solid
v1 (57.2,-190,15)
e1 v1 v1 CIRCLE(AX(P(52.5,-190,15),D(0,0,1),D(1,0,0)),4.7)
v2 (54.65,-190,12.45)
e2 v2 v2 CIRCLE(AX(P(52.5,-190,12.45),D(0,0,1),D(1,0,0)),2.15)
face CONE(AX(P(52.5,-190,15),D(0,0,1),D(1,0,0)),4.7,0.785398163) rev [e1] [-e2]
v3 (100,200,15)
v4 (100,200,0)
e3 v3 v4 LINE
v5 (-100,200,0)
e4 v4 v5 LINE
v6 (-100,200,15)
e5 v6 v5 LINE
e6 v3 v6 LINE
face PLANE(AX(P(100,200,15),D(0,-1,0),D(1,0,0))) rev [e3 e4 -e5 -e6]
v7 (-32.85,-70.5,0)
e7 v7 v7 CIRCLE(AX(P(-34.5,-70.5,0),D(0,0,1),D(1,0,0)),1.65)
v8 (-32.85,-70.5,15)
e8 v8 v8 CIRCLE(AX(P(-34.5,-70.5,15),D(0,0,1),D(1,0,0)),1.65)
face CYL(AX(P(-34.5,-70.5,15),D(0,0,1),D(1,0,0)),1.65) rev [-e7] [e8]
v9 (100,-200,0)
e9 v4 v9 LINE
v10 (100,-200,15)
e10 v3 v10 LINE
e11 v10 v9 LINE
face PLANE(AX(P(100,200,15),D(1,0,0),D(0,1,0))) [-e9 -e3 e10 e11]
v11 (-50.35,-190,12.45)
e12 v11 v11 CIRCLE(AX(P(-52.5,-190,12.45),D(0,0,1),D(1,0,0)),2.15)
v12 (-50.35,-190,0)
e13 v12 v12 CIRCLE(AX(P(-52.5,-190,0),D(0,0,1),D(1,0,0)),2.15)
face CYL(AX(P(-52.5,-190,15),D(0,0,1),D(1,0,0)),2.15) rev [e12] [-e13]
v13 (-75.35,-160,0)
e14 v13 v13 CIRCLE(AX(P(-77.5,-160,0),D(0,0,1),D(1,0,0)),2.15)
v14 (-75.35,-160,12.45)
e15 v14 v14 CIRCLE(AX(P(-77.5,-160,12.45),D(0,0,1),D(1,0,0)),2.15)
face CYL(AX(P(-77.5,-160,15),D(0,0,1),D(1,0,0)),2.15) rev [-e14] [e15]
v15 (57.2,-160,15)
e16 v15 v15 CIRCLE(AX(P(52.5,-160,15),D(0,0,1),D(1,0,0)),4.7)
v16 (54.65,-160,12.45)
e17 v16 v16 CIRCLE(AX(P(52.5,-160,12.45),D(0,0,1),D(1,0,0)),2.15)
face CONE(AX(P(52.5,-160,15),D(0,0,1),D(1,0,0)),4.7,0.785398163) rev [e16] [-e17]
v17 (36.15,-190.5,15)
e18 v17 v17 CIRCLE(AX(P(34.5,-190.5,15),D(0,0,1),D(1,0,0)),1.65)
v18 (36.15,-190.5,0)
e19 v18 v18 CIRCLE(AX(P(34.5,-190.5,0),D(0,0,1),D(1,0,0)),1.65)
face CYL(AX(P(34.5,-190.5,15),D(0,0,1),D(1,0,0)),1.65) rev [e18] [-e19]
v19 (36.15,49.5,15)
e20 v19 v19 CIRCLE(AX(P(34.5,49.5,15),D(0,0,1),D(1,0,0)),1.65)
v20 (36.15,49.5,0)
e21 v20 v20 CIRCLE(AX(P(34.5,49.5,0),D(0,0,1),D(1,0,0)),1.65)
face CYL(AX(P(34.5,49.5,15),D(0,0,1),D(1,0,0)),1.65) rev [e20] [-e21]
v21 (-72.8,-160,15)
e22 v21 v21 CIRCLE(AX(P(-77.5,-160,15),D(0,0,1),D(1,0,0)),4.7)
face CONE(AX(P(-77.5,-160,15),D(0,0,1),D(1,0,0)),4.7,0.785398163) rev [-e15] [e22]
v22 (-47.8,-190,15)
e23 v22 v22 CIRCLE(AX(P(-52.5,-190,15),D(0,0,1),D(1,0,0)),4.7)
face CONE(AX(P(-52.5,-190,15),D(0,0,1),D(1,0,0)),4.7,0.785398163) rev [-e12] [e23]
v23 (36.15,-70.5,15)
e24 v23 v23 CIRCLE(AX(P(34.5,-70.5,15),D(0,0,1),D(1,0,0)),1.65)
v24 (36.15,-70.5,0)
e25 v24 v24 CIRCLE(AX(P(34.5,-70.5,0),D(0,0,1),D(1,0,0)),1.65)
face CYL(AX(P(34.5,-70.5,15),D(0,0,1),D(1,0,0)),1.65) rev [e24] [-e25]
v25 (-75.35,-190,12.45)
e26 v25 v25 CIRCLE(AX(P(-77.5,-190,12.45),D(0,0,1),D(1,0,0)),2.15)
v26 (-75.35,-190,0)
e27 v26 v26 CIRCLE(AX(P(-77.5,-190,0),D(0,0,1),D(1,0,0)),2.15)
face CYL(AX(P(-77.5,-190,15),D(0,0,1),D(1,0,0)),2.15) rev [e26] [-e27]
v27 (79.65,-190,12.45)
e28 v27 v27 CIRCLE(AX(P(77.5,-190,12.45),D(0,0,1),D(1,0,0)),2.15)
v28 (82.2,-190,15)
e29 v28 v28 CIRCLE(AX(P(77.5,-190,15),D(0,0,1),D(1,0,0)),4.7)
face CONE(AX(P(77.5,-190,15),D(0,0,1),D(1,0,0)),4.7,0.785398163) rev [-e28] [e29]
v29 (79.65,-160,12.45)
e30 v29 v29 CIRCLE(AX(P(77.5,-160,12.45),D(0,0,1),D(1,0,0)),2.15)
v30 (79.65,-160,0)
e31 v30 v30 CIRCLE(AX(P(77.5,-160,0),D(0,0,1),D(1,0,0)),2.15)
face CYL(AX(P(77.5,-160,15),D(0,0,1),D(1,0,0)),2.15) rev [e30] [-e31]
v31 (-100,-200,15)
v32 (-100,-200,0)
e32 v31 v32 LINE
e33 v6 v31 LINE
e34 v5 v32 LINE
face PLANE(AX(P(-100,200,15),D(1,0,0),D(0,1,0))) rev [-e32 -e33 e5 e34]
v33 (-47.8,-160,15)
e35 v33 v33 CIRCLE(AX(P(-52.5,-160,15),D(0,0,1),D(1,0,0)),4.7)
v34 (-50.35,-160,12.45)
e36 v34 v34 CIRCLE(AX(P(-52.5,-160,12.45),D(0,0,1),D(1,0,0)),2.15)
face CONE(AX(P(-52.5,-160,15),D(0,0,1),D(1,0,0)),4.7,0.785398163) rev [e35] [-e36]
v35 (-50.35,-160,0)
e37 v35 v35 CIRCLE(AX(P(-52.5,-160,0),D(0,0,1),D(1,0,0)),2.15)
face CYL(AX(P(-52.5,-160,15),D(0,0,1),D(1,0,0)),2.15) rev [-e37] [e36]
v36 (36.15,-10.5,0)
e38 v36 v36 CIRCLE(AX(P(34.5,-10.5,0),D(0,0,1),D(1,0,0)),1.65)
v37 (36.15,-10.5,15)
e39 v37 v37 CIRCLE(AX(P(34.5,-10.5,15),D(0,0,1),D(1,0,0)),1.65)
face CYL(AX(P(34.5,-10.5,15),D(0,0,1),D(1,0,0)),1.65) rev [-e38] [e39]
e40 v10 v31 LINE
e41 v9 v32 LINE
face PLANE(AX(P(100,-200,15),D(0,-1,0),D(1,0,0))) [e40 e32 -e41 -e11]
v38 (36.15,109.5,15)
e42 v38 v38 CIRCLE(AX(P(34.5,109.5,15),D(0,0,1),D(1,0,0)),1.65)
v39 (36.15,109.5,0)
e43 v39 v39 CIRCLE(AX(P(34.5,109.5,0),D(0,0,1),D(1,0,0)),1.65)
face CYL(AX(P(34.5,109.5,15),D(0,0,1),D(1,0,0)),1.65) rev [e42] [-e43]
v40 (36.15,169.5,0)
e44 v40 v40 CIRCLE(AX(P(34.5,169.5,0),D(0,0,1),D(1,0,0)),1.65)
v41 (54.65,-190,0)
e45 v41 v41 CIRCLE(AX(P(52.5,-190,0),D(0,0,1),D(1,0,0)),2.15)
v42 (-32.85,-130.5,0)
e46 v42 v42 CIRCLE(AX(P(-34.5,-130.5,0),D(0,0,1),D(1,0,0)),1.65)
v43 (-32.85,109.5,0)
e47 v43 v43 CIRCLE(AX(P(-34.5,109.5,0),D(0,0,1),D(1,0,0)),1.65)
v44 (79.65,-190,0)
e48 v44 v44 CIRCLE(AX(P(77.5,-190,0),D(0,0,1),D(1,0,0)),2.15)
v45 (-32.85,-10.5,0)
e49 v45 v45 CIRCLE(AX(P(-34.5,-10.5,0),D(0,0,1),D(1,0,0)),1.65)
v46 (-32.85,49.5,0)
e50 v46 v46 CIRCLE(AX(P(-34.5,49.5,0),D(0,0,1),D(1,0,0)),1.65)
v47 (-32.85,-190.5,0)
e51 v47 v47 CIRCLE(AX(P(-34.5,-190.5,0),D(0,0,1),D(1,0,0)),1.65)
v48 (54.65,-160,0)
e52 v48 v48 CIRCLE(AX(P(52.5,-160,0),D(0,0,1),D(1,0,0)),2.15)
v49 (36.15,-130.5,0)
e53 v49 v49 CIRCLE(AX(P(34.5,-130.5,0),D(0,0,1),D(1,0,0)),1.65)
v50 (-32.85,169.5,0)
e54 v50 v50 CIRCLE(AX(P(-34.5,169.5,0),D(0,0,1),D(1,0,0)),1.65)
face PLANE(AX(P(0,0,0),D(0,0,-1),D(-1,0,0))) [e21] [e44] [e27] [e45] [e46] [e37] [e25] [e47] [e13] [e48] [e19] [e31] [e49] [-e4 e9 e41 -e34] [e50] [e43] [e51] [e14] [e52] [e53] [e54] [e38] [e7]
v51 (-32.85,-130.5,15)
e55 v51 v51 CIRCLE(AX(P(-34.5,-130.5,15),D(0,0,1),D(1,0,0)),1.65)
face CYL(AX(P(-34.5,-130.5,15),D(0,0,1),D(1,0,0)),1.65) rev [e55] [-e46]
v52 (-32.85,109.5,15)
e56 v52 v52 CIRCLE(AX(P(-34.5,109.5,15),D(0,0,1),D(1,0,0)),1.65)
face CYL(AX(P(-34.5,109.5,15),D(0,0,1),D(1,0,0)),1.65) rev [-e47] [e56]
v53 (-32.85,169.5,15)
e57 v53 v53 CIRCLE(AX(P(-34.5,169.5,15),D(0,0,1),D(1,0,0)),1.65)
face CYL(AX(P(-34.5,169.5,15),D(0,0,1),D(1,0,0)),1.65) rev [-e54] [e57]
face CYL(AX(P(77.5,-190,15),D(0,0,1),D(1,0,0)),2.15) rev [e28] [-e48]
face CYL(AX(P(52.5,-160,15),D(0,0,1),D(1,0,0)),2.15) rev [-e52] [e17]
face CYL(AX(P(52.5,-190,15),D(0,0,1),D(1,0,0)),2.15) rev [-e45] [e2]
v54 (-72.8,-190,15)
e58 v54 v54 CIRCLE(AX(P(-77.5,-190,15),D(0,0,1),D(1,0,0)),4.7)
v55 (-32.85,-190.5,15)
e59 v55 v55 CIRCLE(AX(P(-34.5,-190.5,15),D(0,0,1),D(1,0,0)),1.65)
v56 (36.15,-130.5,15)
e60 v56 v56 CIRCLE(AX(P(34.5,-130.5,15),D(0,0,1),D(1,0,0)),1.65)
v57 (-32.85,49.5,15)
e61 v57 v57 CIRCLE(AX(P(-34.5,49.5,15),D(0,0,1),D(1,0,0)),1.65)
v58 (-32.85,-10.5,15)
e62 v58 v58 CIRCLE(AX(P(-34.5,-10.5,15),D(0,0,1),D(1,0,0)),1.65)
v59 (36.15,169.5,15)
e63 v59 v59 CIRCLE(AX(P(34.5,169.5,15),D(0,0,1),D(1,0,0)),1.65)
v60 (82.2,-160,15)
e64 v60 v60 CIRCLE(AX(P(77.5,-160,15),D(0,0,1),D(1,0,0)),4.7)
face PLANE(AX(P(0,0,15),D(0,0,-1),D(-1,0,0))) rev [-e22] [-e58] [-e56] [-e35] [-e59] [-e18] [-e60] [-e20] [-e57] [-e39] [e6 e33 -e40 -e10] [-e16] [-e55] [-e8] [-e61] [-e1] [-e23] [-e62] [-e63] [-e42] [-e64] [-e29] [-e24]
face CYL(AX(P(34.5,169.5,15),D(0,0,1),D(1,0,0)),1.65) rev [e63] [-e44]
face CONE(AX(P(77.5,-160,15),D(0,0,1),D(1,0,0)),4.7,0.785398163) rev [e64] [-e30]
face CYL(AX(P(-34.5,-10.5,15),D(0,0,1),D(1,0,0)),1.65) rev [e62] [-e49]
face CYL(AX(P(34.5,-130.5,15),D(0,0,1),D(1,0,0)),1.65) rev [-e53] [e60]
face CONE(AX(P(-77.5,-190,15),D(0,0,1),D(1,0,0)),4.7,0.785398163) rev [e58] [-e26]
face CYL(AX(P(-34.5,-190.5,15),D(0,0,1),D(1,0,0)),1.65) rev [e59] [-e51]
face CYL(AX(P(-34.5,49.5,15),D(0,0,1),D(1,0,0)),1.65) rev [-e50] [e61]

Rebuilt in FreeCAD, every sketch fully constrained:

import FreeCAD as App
import Part
import Sketcher

V = App.Vector


def add_polygon(sketch, points):
    """Adds a closed chain of lines whose ends are joined by coincident constraints."""
    first, n = sketch.GeometryCount, len(points)
    for a, b in zip(points, points[1:] + points[:1]):
        sketch.addGeometry(Part.LineSegment(App.Vector(*a, 0), App.Vector(*b, 0)), False)
    for i in range(n):
        sketch.addConstraint(Sketcher.Constraint("Coincident", first + i, 2, first + (i + 1) % n, 1))

doc = App.newDocument("Part")
body = doc.addObject("PartDesign::Body", "Body")

# Sketch on XY plane
sketch1 = body.newObject("Sketcher::SketchObject", "Sketch")
sketch1.AttachmentSupport = (doc.getObject("XY_Plane"), [""])
sketch1.MapMode = "FlatFace"
add_polygon(sketch1, [(-100, 200), (-100, -200), (100, -200), (100, 200)])  # lines 0-3
sketch1.addConstraint([
    Sketcher.Constraint("Vertical", 0),
    Sketcher.Constraint("Horizontal", 1),
    Sketcher.Constraint("Vertical", 2),
    Sketcher.Constraint("Horizontal", 3),
    Sketcher.Constraint("Symmetric", 0, 2, 2, 2, -1, 1),
    Sketcher.Constraint("DistanceX", 1, 1, 1, 2, 200.0),
    Sketcher.Constraint("DistanceY", 0, 2, 0, 1, 400.0),
])
pad1 = body.newObject("PartDesign::Pad", "Pad")
pad1.Profile = sketch1
pad1.Length = 15

# Sketch on XY plane
sketch2 = body.newObject("Sketcher::SketchObject", "Sketch001")
sketch2.AttachmentSupport = (doc.getObject("XY_Plane"), [""])
sketch2.MapMode = "FlatFace"
sketch2.AttachmentOffset = App.Placement(V(0, 0, 15), App.Rotation())
sketch2.addGeometry([
    Part.Circle(V(-77.5, -160, 0), V(0, 0, 1), 2.15),  # 0
    Part.Circle(V(-52.5, -160, 0), V(0, 0, 1), 2.15),  # 1
    Part.Circle(V(-52.5, -190, 0), V(0, 0, 1), 2.15),  # 2
    Part.Circle(V(-77.5, -190, 0), V(0, 0, 1), 2.15),  # 3
    Part.Circle(V(52.5, -160, 0), V(0, 0, 1), 2.15),  # 4
    Part.Circle(V(77.5, -160, 0), V(0, 0, 1), 2.15),  # 5
    Part.Circle(V(77.5, -190, 0), V(0, 0, 1), 2.15),  # 6
    Part.Circle(V(52.5, -190, 0), V(0, 0, 1), 2.15),  # 7
], False)
sketch2.addConstraint([
    Sketcher.Constraint("Equal", 0, 1),
    Sketcher.Constraint("Equal", 1, 2),
    Sketcher.Constraint("Equal", 2, 3),
    Sketcher.Constraint("Equal", 3, 4),
    Sketcher.Constraint("Equal", 4, 5),
    Sketcher.Constraint("Equal", 5, 6),
    Sketcher.Constraint("Equal", 6, 7),
    Sketcher.Constraint("Symmetric", 1, 3, 4, 3, -2),
    Sketcher.Constraint("Symmetric", 0, 3, 5, 3, -2),
    Sketcher.Constraint("Symmetric", 3, 3, 6, 3, -2),
    Sketcher.Constraint("Symmetric", 2, 3, 7, 3, -2),
    Sketcher.Constraint("Horizontal", 0, 3, 1, 3),
    Sketcher.Constraint("Horizontal", 2, 3, 3, 3),
    Sketcher.Constraint("Vertical", 1, 3, 2, 3),
    Sketcher.Constraint("Vertical", 0, 3, 3, 3),
    Sketcher.Constraint("Diameter", 0, 4.3),
    Sketcher.Constraint("DistanceY", 0, 3, -1, 1, 160.0),
    Sketcher.Constraint("DistanceY", 2, 3, -1, 1, 190.0),
    Sketcher.Constraint("DistanceX", 0, 3, 1, 3, 25.0),
    Sketcher.Constraint("DistanceX", 1, 3, 4, 3, 105.0),
])
doc.recompute()
hole = body.newObject("PartDesign::Hole", "Hole")
hole.Profile = sketch2
hole.ThreadType = "None"
hole.Diameter = 4.3
hole.DepthType = "ThroughAll"
hole.HoleCutType = "Countersink"
hole.HoleCutDiameter = 9.4
hole.HoleCutCountersinkAngle = 90

# Sketch on XY plane
sketch3 = body.newObject("Sketcher::SketchObject", "Sketch002")
sketch3.AttachmentSupport = (doc.getObject("XY_Plane"), [""])
sketch3.MapMode = "FlatFace"
sketch3.AttachmentOffset = App.Placement(V(0, 0, 15), App.Rotation())
sketch3.addGeometry([
    Part.Circle(V(-34.5, -190.5, 0), V(0, 0, 1), 1.65),  # 0
    Part.Circle(V(34.5, -190.5, 0), V(0, 0, 1), 1.65),  # 1
    Part.Circle(V(-34.5, -130.5, 0), V(0, 0, 1), 1.65),  # 2
    Part.Circle(V(34.5, -130.5, 0), V(0, 0, 1), 1.65),  # 3
    Part.Circle(V(-34.5, -70.5, 0), V(0, 0, 1), 1.65),  # 4
    Part.Circle(V(34.5, -70.5, 0), V(0, 0, 1), 1.65),  # 5
    Part.Circle(V(-34.5, -10.5, 0), V(0, 0, 1), 1.65),  # 6
    Part.Circle(V(34.5, -10.5, 0), V(0, 0, 1), 1.65),  # 7
    Part.Circle(V(-34.5, 49.5, 0), V(0, 0, 1), 1.65),  # 8
    Part.Circle(V(34.5, 49.5, 0), V(0, 0, 1), 1.65),  # 9
    Part.Circle(V(-34.5, 109.5, 0), V(0, 0, 1), 1.65),  # 10
    Part.Circle(V(34.5, 109.5, 0), V(0, 0, 1), 1.65),  # 11
    Part.Circle(V(-34.5, 169.5, 0), V(0, 0, 1), 1.65),  # 12
    Part.Circle(V(34.5, 169.5, 0), V(0, 0, 1), 1.65),  # 13
], False)
sketch3.addConstraint([
    Sketcher.Constraint("Equal", 0, 1),
    Sketcher.Constraint("Equal", 1, 2),
    Sketcher.Constraint("Equal", 2, 3),
    Sketcher.Constraint("Equal", 3, 4),
    Sketcher.Constraint("Equal", 4, 5),
    Sketcher.Constraint("Equal", 5, 6),
    Sketcher.Constraint("Equal", 6, 7),
    Sketcher.Constraint("Equal", 7, 8),
    Sketcher.Constraint("Equal", 8, 9),
    Sketcher.Constraint("Equal", 9, 10),
    Sketcher.Constraint("Equal", 10, 11),
    Sketcher.Constraint("Equal", 11, 12),
    Sketcher.Constraint("Equal", 12, 13),
    Sketcher.Constraint("Symmetric", 0, 3, 1, 3, -2),
    Sketcher.Constraint("Symmetric", 2, 3, 3, 3, -2),
    Sketcher.Constraint("Symmetric", 4, 3, 5, 3, -2),
    Sketcher.Constraint("Symmetric", 6, 3, 7, 3, -2),
    Sketcher.Constraint("Symmetric", 8, 3, 9, 3, -2),
    Sketcher.Constraint("Symmetric", 10, 3, 11, 3, -2),
    Sketcher.Constraint("Symmetric", 12, 3, 13, 3, -2),
    Sketcher.Constraint("Vertical", 0, 3, 2, 3),
    Sketcher.Constraint("Vertical", 2, 3, 4, 3),
    Sketcher.Constraint("Vertical", 4, 3, 6, 3),
    Sketcher.Constraint("Vertical", 6, 3, 8, 3),
    Sketcher.Constraint("Vertical", 8, 3, 10, 3),
    Sketcher.Constraint("Vertical", 10, 3, 12, 3),
    Sketcher.Constraint("Diameter", 0, 3.3),
    Sketcher.Constraint("DistanceX", 0, 3, 1, 3, 69.0),
    Sketcher.Constraint("DistanceY", 0, 3, 2, 3, 60.0),
    Sketcher.Constraint("DistanceY", 2, 3, 4, 3, 60.0),
    Sketcher.Constraint("DistanceY", 4, 3, 6, 3, 60.0),
    Sketcher.Constraint("DistanceY", 6, 3, 8, 3, 60.0),
    Sketcher.Constraint("DistanceY", 8, 3, 10, 3, 60.0),
    Sketcher.Constraint("DistanceY", 10, 3, 12, 3, 60.0),
    Sketcher.Constraint("DistanceY", 0, 3, -1, 1, 190.5),
])
doc.recompute()
hole2 = body.newObject("PartDesign::Hole", "Hole001")
hole2.Profile = sketch3
hole2.ThreadType = "None"
hole2.Diameter = 3.3
hole2.DepthType = "ThroughAll"

doc.recompute()
